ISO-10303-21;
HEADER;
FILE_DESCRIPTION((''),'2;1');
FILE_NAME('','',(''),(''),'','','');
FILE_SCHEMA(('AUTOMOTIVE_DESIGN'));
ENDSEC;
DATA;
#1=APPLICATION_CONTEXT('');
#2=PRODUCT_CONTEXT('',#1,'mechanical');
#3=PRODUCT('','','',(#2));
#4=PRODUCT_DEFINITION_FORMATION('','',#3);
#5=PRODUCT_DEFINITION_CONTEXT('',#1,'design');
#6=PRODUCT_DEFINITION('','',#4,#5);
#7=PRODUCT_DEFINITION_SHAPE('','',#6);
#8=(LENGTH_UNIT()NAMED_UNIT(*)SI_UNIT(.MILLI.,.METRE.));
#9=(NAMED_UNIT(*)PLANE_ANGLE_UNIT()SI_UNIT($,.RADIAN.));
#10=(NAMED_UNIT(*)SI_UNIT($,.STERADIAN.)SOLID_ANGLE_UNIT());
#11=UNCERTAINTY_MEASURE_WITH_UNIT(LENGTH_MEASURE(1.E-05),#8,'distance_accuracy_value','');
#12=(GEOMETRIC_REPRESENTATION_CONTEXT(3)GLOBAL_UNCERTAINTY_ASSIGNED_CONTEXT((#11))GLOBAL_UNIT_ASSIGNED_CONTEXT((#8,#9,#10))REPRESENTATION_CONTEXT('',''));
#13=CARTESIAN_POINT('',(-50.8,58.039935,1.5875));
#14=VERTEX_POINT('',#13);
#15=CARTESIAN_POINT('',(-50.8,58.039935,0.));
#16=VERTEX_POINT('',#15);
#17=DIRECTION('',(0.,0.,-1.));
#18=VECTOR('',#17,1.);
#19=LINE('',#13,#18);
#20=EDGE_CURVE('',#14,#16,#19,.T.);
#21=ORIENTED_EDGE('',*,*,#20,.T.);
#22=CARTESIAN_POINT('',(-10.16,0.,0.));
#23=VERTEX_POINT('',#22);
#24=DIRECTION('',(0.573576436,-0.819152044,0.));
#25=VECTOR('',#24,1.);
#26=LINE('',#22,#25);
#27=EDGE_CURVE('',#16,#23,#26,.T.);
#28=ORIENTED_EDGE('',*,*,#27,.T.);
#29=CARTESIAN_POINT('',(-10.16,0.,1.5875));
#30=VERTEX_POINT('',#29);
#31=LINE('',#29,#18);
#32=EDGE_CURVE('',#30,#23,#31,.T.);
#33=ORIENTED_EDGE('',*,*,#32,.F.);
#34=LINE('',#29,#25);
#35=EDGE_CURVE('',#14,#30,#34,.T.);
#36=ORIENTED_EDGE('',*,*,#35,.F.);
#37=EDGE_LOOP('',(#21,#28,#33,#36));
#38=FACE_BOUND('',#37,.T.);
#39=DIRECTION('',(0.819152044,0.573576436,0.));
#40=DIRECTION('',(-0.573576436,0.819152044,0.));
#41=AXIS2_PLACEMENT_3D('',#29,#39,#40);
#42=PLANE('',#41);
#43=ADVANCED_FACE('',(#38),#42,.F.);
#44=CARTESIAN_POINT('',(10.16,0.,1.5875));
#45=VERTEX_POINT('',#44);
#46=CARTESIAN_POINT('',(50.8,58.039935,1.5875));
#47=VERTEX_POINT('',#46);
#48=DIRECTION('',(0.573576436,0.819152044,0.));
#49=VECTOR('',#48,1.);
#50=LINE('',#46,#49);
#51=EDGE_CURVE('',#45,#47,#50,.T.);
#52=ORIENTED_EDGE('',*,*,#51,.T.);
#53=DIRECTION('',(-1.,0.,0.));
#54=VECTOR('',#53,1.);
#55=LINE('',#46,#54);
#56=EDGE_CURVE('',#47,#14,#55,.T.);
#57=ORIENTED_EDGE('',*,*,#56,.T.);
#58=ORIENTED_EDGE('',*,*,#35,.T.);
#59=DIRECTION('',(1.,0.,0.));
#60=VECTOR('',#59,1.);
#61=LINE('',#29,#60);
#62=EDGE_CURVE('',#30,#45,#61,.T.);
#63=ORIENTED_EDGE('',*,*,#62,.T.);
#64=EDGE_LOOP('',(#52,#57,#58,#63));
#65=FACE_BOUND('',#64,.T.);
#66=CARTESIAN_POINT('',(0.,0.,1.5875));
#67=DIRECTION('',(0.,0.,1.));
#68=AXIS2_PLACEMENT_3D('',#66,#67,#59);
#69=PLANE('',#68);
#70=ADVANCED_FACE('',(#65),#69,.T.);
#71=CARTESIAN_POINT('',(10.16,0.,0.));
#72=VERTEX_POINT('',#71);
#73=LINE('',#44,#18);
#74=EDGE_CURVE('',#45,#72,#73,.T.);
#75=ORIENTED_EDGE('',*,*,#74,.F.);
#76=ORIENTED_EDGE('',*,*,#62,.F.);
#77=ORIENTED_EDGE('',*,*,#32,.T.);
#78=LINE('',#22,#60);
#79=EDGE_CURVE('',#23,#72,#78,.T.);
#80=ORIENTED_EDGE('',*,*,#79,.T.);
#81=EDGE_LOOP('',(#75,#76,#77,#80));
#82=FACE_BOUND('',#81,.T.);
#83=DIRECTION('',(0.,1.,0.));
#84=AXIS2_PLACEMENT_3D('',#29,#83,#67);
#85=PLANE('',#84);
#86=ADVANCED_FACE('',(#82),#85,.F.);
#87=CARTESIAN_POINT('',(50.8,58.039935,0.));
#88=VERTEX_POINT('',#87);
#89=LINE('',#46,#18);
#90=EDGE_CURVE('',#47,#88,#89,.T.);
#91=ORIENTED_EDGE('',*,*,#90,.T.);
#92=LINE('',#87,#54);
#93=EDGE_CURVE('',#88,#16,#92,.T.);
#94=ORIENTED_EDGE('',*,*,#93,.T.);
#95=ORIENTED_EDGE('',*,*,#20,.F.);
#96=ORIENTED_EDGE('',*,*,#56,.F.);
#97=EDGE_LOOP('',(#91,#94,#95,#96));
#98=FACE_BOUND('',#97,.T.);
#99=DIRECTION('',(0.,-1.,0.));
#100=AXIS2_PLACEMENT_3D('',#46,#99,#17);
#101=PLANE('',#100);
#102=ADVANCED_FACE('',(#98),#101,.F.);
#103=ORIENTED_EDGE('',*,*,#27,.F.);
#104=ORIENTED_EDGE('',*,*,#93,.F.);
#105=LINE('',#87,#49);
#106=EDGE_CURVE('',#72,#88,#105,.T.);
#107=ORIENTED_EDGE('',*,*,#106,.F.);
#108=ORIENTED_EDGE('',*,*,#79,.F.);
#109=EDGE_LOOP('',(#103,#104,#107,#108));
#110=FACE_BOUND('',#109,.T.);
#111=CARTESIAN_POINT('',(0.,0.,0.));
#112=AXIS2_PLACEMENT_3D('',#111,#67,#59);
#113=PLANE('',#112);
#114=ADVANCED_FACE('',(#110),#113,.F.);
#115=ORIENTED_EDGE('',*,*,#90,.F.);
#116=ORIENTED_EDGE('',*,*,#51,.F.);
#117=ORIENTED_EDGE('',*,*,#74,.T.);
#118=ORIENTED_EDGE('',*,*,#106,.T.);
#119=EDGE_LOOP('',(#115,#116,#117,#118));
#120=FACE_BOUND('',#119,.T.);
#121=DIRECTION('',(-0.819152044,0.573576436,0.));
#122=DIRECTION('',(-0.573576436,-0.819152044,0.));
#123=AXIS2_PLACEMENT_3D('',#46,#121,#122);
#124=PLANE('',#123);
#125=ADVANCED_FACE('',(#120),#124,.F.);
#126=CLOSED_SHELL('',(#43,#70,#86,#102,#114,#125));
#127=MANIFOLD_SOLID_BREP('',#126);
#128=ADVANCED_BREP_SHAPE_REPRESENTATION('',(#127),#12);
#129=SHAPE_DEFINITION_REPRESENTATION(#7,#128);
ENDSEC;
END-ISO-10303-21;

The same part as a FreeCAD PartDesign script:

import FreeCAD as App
import Part
import Sketcher
Q = App.Units.Quantity


def add_polygon(sketch, points):
    """Adds a closed chain of lines whose ends are joined by coincident constraints."""
    first, n = sketch.GeometryCount, len(points)
    for a, b in zip(points, points[1:] + points[:1]):
        sketch.addGeometry(Part.LineSegment(App.Vector(*a, 0), App.Vector(*b, 0)), False)
    for i in range(n):
        sketch.addConstraint(Sketcher.Constraint("Coincident", first + i, 2, first + (i + 1) % n, 1))

doc = App.newDocument("Part")
body = doc.addObject("PartDesign::Body", "Body")

# Sketch on XY plane
sketch1 = body.newObject("Sketcher::SketchObject", "Sketch")
sketch1.AttachmentSupport = (doc.getObject("XY_Plane"), [""])
sketch1.MapMode = "FlatFace"
add_polygon(sketch1, [(-10, 0), (10, 0), (51, 58), (-51, 58)])  # lines 0-3
sketch1.addConstraint(Sketcher.Constraint("Horizontal", 0))
sketch1.addConstraint(Sketcher.Constraint("Horizontal", 2))
sketch1.addConstraint(Sketcher.Constraint("Symmetric", 0, 2, 3, 2, -1, 1))
sketch1.addConstraint(Sketcher.Constraint("Equal", 1, 3))
sketch1.addConstraint(Sketcher.Constraint("DistanceX", 2, 2, 2, 1, Q("4 in")))
sketch1.addConstraint(Sketcher.Constraint("DistanceX", 0, 1, 0, 2, Q("0.8 in")))
sketch1.addConstraint(Sketcher.Constraint("Angle", 1, Q("55 deg")))
pad1 = body.newObject("PartDesign::Pad", "Pad")
pad1.Profile = sketch1
pad1.Length = Q("0.0625 in")

doc.recompute()
